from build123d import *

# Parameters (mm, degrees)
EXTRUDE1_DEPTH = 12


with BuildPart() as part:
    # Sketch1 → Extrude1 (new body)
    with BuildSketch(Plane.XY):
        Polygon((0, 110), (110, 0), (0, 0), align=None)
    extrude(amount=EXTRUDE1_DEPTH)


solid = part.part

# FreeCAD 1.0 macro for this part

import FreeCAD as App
import Part
import Sketcher
from FreeCAD import Vector
Q = App.Units.Quantity


def add_polygon(sketch, points):
    """Adds a closed chain of lines whose ends are joined by coincident constraints."""
    first, n = sketch.GeometryCount, len(points)
    for a, b in zip(points, points[1:] + points[:1]):
        sketch.addGeometry(Part.LineSegment(App.Vector(*a, 0), App.Vector(*b, 0)), False)
    for i in range(n):
        sketch.addConstraint(Sketcher.Constraint("Coincident", first + i, 2, first + (i + 1) % n, 1))

doc = App.newDocument("Part")
body = doc.addObject("PartDesign::Body", "Body")

# Sketch on XY plane
sketch1 = body.newObject("Sketcher::SketchObject", "Sketch")
sketch1.AttachmentSupport = (doc.getObject("XY_Plane"), [""])
sketch1.MapMode = "FlatFace"
add_polygon(sketch1, [(110, 0), (0, 110), (0, 0)])  # lines 0-2
sketch1.addConstraint([
    Sketcher.Constraint("Vertical", 1),
    Sketcher.Constraint("Horizontal", 2),
    Sketcher.Constraint("Coincident", 1, 2, -1, 1),
    Sketcher.Constraint("Equal", 2, 1),
    Sketcher.Constraint("DistanceX", 2, 1, 2, 2, Q("110 mm")),
])
pad1 = body.newObject("PartDesign::Pad", "Pad")
pad1.Profile = sketch1
pad1.Length = 12

doc.recompute()
